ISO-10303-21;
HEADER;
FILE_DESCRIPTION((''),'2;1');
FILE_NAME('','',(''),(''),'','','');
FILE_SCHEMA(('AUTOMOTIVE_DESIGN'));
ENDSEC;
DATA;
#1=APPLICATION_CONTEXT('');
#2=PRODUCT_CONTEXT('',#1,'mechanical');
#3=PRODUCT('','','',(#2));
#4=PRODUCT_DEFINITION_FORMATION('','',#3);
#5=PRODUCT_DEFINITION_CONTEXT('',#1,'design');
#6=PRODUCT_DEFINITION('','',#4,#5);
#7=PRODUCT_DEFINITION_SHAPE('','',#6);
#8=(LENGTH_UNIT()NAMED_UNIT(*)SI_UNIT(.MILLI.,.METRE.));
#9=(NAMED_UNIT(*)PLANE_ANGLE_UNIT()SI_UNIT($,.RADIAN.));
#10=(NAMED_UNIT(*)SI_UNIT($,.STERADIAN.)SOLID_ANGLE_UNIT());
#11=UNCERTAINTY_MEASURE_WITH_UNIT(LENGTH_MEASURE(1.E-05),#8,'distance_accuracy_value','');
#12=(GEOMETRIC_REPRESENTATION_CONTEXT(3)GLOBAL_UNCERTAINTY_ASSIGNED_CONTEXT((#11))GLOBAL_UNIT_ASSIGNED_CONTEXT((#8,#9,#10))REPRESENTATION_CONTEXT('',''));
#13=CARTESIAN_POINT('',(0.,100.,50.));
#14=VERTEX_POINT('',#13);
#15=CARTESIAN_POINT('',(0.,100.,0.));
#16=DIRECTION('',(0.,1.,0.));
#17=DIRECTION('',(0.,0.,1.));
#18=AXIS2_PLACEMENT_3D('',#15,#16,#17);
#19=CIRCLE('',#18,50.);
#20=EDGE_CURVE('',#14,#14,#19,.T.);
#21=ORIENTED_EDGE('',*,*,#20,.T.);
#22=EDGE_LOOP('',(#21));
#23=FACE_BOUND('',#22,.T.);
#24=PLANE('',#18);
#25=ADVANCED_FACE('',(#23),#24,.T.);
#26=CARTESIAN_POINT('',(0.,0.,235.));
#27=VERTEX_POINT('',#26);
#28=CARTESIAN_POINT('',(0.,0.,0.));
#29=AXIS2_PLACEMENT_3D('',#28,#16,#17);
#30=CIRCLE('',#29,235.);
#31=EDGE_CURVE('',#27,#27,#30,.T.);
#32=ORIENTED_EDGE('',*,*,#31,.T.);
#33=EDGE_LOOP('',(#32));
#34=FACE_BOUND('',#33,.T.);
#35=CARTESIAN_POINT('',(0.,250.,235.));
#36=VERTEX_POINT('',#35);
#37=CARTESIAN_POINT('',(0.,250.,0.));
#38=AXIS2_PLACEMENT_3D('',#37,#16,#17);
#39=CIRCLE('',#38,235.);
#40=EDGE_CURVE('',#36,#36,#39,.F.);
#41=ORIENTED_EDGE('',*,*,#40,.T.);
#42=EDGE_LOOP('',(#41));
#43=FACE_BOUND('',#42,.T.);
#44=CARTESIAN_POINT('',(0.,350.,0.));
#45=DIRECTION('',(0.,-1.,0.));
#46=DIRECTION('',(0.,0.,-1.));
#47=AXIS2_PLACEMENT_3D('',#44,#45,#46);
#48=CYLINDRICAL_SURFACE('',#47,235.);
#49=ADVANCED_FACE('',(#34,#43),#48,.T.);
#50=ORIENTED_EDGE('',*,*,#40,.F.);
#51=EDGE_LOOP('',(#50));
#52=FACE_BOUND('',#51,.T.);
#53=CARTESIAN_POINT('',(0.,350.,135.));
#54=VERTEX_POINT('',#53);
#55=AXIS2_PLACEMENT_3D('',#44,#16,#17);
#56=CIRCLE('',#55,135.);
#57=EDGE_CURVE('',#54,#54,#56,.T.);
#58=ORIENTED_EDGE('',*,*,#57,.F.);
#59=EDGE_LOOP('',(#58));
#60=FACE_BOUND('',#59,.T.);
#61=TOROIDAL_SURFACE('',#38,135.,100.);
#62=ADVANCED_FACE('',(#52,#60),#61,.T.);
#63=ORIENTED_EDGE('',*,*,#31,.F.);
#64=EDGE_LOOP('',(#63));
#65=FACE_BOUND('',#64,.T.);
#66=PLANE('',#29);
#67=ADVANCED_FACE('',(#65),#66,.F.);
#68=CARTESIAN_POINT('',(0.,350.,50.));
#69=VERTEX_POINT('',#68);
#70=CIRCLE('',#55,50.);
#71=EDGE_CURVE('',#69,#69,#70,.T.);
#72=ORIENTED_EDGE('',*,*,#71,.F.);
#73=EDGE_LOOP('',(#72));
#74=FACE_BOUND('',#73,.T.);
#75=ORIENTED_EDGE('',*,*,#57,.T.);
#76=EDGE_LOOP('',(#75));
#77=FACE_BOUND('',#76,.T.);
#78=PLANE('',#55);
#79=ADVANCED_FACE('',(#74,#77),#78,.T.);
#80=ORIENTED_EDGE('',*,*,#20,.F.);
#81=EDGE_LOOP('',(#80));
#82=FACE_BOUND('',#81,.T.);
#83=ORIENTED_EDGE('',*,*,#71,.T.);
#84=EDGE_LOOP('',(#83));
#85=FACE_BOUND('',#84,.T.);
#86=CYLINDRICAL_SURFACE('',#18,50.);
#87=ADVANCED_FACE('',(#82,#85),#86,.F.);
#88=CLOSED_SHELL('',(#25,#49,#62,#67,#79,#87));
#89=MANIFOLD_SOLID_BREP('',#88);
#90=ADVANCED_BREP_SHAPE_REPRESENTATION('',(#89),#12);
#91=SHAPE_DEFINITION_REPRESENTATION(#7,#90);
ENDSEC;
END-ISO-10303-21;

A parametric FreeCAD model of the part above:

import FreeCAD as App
import Part
import Sketcher


def edges_at(feature, points):
    """Names of the edges that pass closest to the given points."""
    edges = feature.Shape.Edges
    near = lambda p: min(range(len(edges)), key=lambda i: edges[i].distToShape(Part.Vertex(*p))[0])
    return sorted({f"Edge{near(p) + 1}" for p in points})

doc = App.newDocument("Part")
params = doc.addObject("Spreadsheet::Sheet", "Params")
for row, (alias, value) in enumerate([
    ("sketch1_diameter", "470 mm"),
    ("pad1_length", "350 mm"),
    ("sketch2_diameter", "100 mm"),
    ("pocket1_length", "250 mm"),
    ("fillet_radius", "100 mm"),
], start=1):
    params.set(f"A{row}", alias)
    params.set(f"B{row}", "=" + value)
    params.setAlias(f"B{row}", alias)

body = doc.addObject("PartDesign::Body", "Body")

# Sketch on XZ plane
sketch1 = body.newObject("Sketcher::SketchObject", "Sketch")
sketch1.AttachmentSupport = (doc.getObject("XZ_Plane"), [""])
sketch1.MapMode = "FlatFace"
sketch1.addGeometry(Part.Circle(App.Vector(0, 0, 0), App.Vector(0, 0, 1), 235), False)
sketch1.addConstraint(Sketcher.Constraint("Coincident", 0, 3, -1, 1))
sketch1.addConstraint(Sketcher.Constraint("Diameter", 0, 470.0))
sketch1.setExpression("Constraints[1]", "Params.sketch1_diameter")
pad1 = body.newObject("PartDesign::Pad", "Pad")
pad1.Profile = sketch1
pad1.setExpression("Length", "Params.pad1_length")
pad1.Reversed = True

# Sketch on XZ plane
sketch2 = body.newObject("Sketcher::SketchObject", "Sketch001")
sketch2.AttachmentSupport = (doc.getObject("XZ_Plane"), [""])
sketch2.MapMode = "FlatFace"
sketch2.AttachmentOffset = App.Placement(App.Vector(0, 0, -350), App.Rotation())
sketch2.addGeometry(Part.Circle(App.Vector(0, 0, 0), App.Vector(0, 0, 1), 50), False)
sketch2.addConstraint(Sketcher.Constraint("Coincident", 0, 3, -1, 1))
sketch2.addConstraint(Sketcher.Constraint("Diameter", 0, 100.0))
sketch2.setExpression("Constraints[1]", "Params.sketch2_diameter")
pocket1 = body.newObject("PartDesign::Pocket", "Pocket")
pocket1.Profile = sketch2
pocket1.setExpression("Length", "Params.pocket1_length")
pocket1.Reversed = True
doc.recompute()

fillet = body.newObject("PartDesign::Fillet", "Fillet")
fillet.Base = (pocket1, edges_at(pocket1, [(-235, 350, 0)]))
fillet.setExpression("Radius", "Params.fillet_radius")

doc.recompute()
